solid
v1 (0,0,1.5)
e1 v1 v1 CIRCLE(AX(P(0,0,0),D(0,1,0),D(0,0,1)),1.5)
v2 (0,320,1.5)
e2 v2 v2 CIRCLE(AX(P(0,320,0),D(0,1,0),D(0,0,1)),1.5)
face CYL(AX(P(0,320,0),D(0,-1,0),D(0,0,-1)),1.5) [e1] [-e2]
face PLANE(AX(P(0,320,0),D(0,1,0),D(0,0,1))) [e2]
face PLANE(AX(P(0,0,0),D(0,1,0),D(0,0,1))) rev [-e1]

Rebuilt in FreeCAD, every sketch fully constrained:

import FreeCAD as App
import Part
import Sketcher

V = App.Vector
Q = App.Units.Quantity

doc = App.newDocument("Part")
body = doc.addObject("PartDesign::Body", "Body")

# Sketch on XZ plane
sketch1 = body.newObject("Sketcher::SketchObject", "Sketch")
sketch1.AttachmentSupport = (doc.getObject("XZ_Plane"), [""])
sketch1.MapMode = "FlatFace"
sketch1.addGeometry(Part.Circle(V(0, 0, 0), V(0, 0, 1), 1.5), False)
sketch1.addConstraint(Sketcher.Constraint("Coincident", 0, 3, -1, 1))
sketch1.addConstraint(Sketcher.Constraint("Diameter", 0, Q("3 mm")))
pad1 = body.newObject("PartDesign::Pad", "Pad")
pad1.Profile = sketch1
pad1.Length = 320
pad1.Reversed = True

doc.recompute()
